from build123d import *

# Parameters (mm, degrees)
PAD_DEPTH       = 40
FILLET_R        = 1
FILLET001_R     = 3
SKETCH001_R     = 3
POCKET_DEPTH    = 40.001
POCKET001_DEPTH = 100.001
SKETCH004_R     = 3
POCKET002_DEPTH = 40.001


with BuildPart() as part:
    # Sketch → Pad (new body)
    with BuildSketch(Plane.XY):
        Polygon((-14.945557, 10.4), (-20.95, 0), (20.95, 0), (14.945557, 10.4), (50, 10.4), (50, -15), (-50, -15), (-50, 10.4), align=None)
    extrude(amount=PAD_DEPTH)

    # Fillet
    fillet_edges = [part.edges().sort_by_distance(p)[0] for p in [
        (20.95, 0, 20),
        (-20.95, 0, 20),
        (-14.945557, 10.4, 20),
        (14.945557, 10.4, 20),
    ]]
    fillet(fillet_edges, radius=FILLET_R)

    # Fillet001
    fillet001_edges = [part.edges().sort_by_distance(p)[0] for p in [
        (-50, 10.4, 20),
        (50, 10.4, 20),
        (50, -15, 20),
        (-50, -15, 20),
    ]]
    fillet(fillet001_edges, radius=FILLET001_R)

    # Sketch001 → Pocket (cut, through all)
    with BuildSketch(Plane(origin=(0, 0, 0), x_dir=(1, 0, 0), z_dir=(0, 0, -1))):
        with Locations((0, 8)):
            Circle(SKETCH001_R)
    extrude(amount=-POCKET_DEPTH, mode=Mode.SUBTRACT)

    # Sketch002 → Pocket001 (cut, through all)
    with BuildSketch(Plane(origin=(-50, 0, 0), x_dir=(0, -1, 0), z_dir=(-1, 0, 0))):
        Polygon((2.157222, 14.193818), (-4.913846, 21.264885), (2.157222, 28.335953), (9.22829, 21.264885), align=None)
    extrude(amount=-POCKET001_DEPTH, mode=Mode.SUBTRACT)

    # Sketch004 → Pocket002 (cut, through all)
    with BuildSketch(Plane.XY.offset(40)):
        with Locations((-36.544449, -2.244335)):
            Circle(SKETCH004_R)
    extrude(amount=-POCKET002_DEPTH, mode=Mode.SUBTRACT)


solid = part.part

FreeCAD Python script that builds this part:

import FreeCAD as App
import Part
import Sketcher

V = App.Vector
Q = App.Units.Quantity


def edges_at(feature, points):
    """Names of the edges that pass closest to the given points."""
    edges = feature.Shape.Edges
    near = lambda p: min(range(len(edges)), key=lambda i: edges[i].distToShape(Part.Vertex(*p))[0])
    return sorted({f"Edge{near(p) + 1}" for p in points})

doc = App.newDocument("Part")
body = doc.addObject("PartDesign::Body", "Body")

# Sketch on XY plane
sketch1 = body.newObject("Sketcher::SketchObject", "Sketch")
sketch1.AttachmentSupport = (doc.getObject("XY_Plane"), [""])
sketch1.MapMode = "FlatFace"
sketch1.addGeometry([
    Part.LineSegment(V(-21, 0, 0), V(-15, 10, 0)),  # 0
    Part.LineSegment(V(-15, 10, 0), V(-50, 10, 0)),  # 1
    Part.LineSegment(V(-50, 10, 0), V(-50, -15, 0)),  # 2
    Part.LineSegment(V(-50, -15, 0), V(50, -15, 0)),  # 3
    Part.LineSegment(V(50, -15, 0), V(50, 10, 0)),  # 4
    Part.LineSegment(V(50, 10, 0), V(15, 10, 0)),  # 5
    Part.LineSegment(V(15, 10, 0), V(21, 0, 0)),  # 6
    Part.LineSegment(V(21, 0, 0), V(-21, 0, 0)),  # 7
], False)
sketch1.addConstraint([
    Sketcher.Constraint("Coincident", 0, 2, 1, 1),
    Sketcher.Constraint("Coincident", 1, 2, 2, 1),
    Sketcher.Constraint("Coincident", 2, 2, 3, 1),
    Sketcher.Constraint("Coincident", 3, 2, 4, 1),
    Sketcher.Constraint("Coincident", 4, 2, 5, 1),
    Sketcher.Constraint("Coincident", 5, 2, 6, 1),
    Sketcher.Constraint("Coincident", 6, 2, 7, 1),
    Sketcher.Constraint("Coincident", 7, 2, 0, 1),
    Sketcher.Constraint("Horizontal", 1),
    Sketcher.Constraint("Vertical", 2),
    Sketcher.Constraint("Horizontal", 3),
    Sketcher.Constraint("Vertical", 4),
    Sketcher.Constraint("Horizontal", 5),
    Sketcher.Constraint("Horizontal", 7),
    Sketcher.Constraint("Symmetric", 6, 2, 7, 2, -1, 1),
    Sketcher.Constraint("Symmetric", 1, 2, 4, 2, -2),
    Sketcher.Constraint("Equal", 1, 5),
    Sketcher.Constraint("DistanceX", 3, 1, 3, 2, 100.0),
    Sketcher.Constraint("Angle", 0, Q("59.999999 deg")),
    Sketcher.Constraint("DistanceX", 7, 2, 7, 1, 41.9),
    Sketcher.Constraint("DistanceY", 2, 2, 2, 1, 25.4),
    Sketcher.Constraint("DistanceY", 2, 2, -1, 1, 15.0),
])
pad1 = body.newObject("PartDesign::Pad", "Pad")
pad1.Profile = sketch1
pad1.Length = 40
doc.recompute()

fillet = body.newObject("PartDesign::Fillet", "Fillet")
fillet.Base = (pad1, edges_at(pad1, [
    (20.95, 0, 20),
    (-20.95, 0, 20),
    (-14.946, 10.4, 20),
    (14.946, 10.4, 20),
]))
fillet.Radius = 1
doc.recompute()

fillet2 = body.newObject("PartDesign::Fillet", "Fillet001")
fillet2.Base = (fillet, edges_at(fillet, [
    (-50, 10.4, 20),
    (50, 10.4, 20),
    (50, -15, 20),
    (-50, -15, 20),
]))
fillet2.Radius = 3

# Sketch on XY plane
sketch2 = body.newObject("Sketcher::SketchObject", "Sketch001")
sketch2.AttachmentSupport = (doc.getObject("XY_Plane"), [""])
sketch2.MapMode = "FlatFace"
sketch2.addGeometry(Part.Circle(V(0, -8, 0), V(0, 0, 1), 3), False)
sketch2.addConstraint([
    Sketcher.Constraint("PointOnObject", 0, 3, -2),
    Sketcher.Constraint("Diameter", 0, 6.0),
    Sketcher.Constraint("DistanceY", 0, 3, -1, 1, 8.0),
])
pocket1 = body.newObject("PartDesign::Pocket", "Pocket")
pocket1.Profile = sketch2
pocket1.Type = "ThroughAll"
pocket1.Reversed = True

# Sketch on YZ plane
sketch3 = body.newObject("Sketcher::SketchObject", "Sketch002")
sketch3.AttachmentSupport = (doc.getObject("YZ_Plane"), [""])
sketch3.MapMode = "FlatFace"
sketch3.AttachmentOffset = App.Placement(V(0, 0, -50), App.Rotation())
sketch3.addGeometry([
    Part.LineSegment(V(5, 21, 0), V(-2, 14, 0)),
    Part.LineSegment(V(-2, 14, 0), V(-9, 21, 0)),
    Part.LineSegment(V(-9, 21, 0), V(-2, 28, 0)),
    Part.LineSegment(V(-2, 28, 0), V(5, 21, 0)),
], False)
sketch3.addConstraint([
    Sketcher.Constraint("Coincident", 0, 2, 1, 1),
    Sketcher.Constraint("Coincident", 1, 2, 2, 1),
    Sketcher.Constraint("Coincident", 2, 2, 3, 1),
    Sketcher.Constraint("Coincident", 3, 2, 0, 1),
    Sketcher.Constraint("Perpendicular", 0, 1),
    Sketcher.Constraint("Perpendicular", 1, 2),
    Sketcher.Constraint("Perpendicular", 2, 3),
    Sketcher.Constraint("Horizontal", 1, 2, 3, 2),
    Sketcher.Constraint("Vertical", 0, 2, 2, 2),
    Sketcher.Constraint("Distance", 0, 10.0),
    Sketcher.Constraint("DistanceX", 0, 2, -1, 1, 2.157222),
    Sketcher.Constraint("DistanceY", -1, 1, 0, 2, 14.193818),
])
pocket2 = body.newObject("PartDesign::Pocket", "Pocket001")
pocket2.Profile = sketch3
pocket2.Type = "ThroughAll"
pocket2.Reversed = True

# Sketch on XY plane
sketch4 = body.newObject("Sketcher::SketchObject", "Sketch003")
sketch4.AttachmentSupport = (doc.getObject("XY_Plane"), [""])
sketch4.MapMode = "FlatFace"
sketch4.AttachmentOffset = App.Placement(V(0, 0, 40), App.Rotation())
sketch4.addGeometry(Part.Circle(V(-36.5, -2.2, 0), V(0, 0, 1), 3), False)
sketch4.addConstraint([
    Sketcher.Constraint("Diameter", 0, 6.0),
    Sketcher.Constraint("DistanceX", 0, 3, -1, 1, 36.544449),
    Sketcher.Constraint("DistanceY", 0, 3, -1, 1, 2.244335),
])
pocket3 = body.newObject("PartDesign::Pocket", "Pocket002")
pocket3.Profile = sketch4
pocket3.Type = "ThroughAll"

doc.recompute()
